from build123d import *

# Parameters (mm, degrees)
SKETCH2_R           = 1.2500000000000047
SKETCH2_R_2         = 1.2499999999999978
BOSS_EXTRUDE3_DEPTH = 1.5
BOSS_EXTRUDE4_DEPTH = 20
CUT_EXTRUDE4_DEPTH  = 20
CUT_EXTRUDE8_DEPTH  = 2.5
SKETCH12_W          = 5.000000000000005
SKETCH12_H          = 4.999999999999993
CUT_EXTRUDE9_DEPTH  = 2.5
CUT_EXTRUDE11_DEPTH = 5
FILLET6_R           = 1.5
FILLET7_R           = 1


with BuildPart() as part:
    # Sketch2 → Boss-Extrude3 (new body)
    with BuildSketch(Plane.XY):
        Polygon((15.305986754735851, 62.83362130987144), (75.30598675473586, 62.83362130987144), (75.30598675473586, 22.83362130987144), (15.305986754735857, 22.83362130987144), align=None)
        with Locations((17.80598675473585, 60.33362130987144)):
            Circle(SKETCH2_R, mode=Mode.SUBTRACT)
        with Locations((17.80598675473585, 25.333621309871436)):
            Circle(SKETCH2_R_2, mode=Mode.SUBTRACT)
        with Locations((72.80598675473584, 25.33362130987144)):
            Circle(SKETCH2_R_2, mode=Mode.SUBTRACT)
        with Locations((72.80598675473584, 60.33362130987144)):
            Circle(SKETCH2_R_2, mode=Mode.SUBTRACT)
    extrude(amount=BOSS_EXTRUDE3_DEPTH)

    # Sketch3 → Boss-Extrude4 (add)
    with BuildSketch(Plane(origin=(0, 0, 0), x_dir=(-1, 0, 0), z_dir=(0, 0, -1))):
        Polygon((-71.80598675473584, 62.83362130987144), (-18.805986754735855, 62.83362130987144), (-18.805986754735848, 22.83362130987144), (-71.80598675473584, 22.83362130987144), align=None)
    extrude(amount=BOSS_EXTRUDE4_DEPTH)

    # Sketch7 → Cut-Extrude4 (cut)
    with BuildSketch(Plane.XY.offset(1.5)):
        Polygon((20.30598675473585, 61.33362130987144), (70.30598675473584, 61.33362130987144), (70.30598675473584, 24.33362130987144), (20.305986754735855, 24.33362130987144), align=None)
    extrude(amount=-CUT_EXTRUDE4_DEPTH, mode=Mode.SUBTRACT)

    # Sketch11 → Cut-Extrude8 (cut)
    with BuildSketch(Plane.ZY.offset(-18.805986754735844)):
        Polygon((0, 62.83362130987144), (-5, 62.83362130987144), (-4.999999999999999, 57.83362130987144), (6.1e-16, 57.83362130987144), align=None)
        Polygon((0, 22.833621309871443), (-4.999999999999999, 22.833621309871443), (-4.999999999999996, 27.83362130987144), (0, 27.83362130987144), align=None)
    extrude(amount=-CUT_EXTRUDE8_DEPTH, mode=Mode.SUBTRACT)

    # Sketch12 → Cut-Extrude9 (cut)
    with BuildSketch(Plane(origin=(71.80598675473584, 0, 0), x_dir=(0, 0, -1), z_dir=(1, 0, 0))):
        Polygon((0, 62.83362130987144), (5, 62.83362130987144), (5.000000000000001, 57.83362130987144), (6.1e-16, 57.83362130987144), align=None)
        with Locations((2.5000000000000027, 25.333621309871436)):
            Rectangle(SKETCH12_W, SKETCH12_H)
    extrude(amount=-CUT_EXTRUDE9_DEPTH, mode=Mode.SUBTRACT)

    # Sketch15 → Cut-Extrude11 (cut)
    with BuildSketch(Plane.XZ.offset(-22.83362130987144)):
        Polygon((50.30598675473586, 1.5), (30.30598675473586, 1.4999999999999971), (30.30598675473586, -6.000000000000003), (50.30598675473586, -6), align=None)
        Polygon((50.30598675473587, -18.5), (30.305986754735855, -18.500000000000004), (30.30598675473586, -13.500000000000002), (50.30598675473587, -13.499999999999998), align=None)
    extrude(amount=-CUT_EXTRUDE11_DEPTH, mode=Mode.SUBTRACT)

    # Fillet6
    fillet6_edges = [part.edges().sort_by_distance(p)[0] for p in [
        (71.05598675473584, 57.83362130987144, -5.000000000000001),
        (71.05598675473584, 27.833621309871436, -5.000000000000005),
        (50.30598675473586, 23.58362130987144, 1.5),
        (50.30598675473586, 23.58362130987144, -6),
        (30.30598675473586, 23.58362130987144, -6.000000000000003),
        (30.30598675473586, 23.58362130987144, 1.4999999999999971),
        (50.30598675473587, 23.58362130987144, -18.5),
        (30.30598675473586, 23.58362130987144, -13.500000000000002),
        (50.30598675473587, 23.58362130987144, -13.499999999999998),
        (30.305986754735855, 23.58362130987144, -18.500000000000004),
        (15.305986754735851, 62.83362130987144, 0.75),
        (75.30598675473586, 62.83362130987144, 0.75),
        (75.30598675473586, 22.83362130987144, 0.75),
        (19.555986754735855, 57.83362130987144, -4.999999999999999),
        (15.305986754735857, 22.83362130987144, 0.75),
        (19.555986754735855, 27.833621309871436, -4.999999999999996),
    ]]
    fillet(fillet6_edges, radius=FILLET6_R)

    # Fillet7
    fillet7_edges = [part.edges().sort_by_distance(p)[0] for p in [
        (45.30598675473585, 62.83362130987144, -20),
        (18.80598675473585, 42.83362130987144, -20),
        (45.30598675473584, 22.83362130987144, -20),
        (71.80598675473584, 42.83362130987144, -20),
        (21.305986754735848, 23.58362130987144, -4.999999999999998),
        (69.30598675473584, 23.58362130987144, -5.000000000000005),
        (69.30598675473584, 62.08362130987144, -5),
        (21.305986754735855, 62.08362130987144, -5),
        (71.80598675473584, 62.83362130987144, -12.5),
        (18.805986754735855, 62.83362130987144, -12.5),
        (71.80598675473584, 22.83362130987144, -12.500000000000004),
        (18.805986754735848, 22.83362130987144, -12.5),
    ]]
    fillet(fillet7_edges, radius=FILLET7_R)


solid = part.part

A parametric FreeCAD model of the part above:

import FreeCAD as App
import Part
import Sketcher


def edges_at(feature, points):
    """Names of the edges that pass closest to the given points."""
    edges = feature.Shape.Edges
    near = lambda p: min(range(len(edges)), key=lambda i: edges[i].distToShape(Part.Vertex(*p))[0])
    return sorted({f"Edge{near(p) + 1}" for p in points})

doc = App.newDocument("Part")
params = doc.addObject("Spreadsheet::Sheet", "Params")
for row, (alias, value) in enumerate([
    ("sketch1_diameter", "2.5 mm"),
    ("sketch1_width", "60 mm"),
    ("sketch1_height", "40 mm"),
    ("pad1_length", "1.5 mm"),
    ("sketch2_width", "53 mm"),
    ("sketch2_height", "40 mm"),
    ("pad2_length", "20 mm"),
    ("sketch3_width", "50 mm"),
    ("sketch3_height", "37 mm"),
    ("pocket1_length", "20 mm"),
    ("sketch4_width", "5 mm"),
    ("pocket2_length", "2.5 mm"),
    ("sketch5_width", "5 mm"),
    ("pocket3_length", "2.5 mm"),
    ("sketch6_width", "20 mm"),
    ("sketch6_height", "5 mm"),
    ("sketch6_height2", "7.5 mm"),
    ("pocket4_length", "5 mm"),
    ("fillet_radius", "1.5 mm"),
    ("fillet2_radius", "1 mm"),
], start=1):
    params.set(f"A{row}", alias)
    params.set(f"B{row}", "=" + value)
    params.setAlias(f"B{row}", alias)

body = doc.addObject("PartDesign::Body", "Body")

# Sketch on XY plane
sketch1 = doc.addObject("Sketcher::SketchObject", "Sketch")
body.addObject(sketch1)
sketch1.AttachmentSupport = (doc.XY_Plane, [""])
sketch1.MapMode = "FlatFace"
sketch1.addGeometry([
    Part.LineSegment(App.Vector(75.3, 62.8, 0), App.Vector(15.3, 62.8, 0)),  # 0
    Part.LineSegment(App.Vector(15.3, 62.8, 0), App.Vector(15.3, 22.8, 0)),  # 1
    Part.LineSegment(App.Vector(15.3, 22.8, 0), App.Vector(75.3, 22.8, 0)),  # 2
    Part.LineSegment(App.Vector(75.3, 22.8, 0), App.Vector(75.3, 62.8, 0)),  # 3
    Part.Circle(App.Vector(72.8, 25.3, 0), App.Vector(0, 0, 1), 1.2),  # 4
    Part.Circle(App.Vector(17.8, 25.3, 0), App.Vector(0, 0, 1), 1.2),  # 5
    Part.Circle(App.Vector(72.8, 60.3, 0), App.Vector(0, 0, 1), 1.2),  # 6
    Part.Circle(App.Vector(17.8, 60.3, 0), App.Vector(0, 0, 1), 1.2),  # 7
], False)
sketch1.addConstraint([
    Sketcher.Constraint("Coincident", 0, 2, 1, 1),
    Sketcher.Constraint("Coincident", 1, 2, 2, 1),
    Sketcher.Constraint("Coincident", 2, 2, 3, 1),
    Sketcher.Constraint("Coincident", 3, 2, 0, 1),
    Sketcher.Constraint("Horizontal", 0),
    Sketcher.Constraint("Vertical", 1),
    Sketcher.Constraint("Horizontal", 2),
    Sketcher.Constraint("Vertical", 3),
    Sketcher.Constraint("Equal", 4, 5),
    Sketcher.Constraint("Equal", 5, 6),
    Sketcher.Constraint("Equal", 6, 7),
    Sketcher.Constraint("Horizontal", 4, 3, 5, 3),
    Sketcher.Constraint("Horizontal", 6, 3, 7, 3),
    Sketcher.Constraint("Vertical", 4, 3, 6, 3),
    Sketcher.Constraint("Vertical", 5, 3, 7, 3),
    Sketcher.Constraint("Diameter", 4, 2.5),
    Sketcher.Constraint("DistanceX", 0, 2, 0, 1, 60.0),
    Sketcher.Constraint("DistanceY", 1, 2, 1, 1, 40.0),
    Sketcher.Constraint("DistanceX", 5, 3, 4, 3, 55.0),
    Sketcher.Constraint("DistanceY", 4, 3, 6, 3, 35.0),
    Sketcher.Constraint("DistanceX", 0, 2, 7, 3, 2.5),
    Sketcher.Constraint("DistanceY", 7, 3, 0, 2, 2.5),
    Sketcher.Constraint("DistanceY", -1, 1, 4, 3, 25.333621),
    Sketcher.Constraint("DistanceX", -1, 1, 4, 3, 72.805987),
])
sketch1.setExpression("Constraints[15]", "Params.sketch1_diameter")
sketch1.setExpression("Constraints[16]", "Params.sketch1_width")
sketch1.setExpression("Constraints[17]", "Params.sketch1_height")
pad1 = doc.addObject("PartDesign::Pad", "Pad")
body.addObject(pad1)
pad1.Profile = sketch1
pad1.setExpression("Length", "Params.pad1_length")

# Sketch on XY plane
sketch2 = doc.addObject("Sketcher::SketchObject", "Sketch001")
body.addObject(sketch2)
sketch2.AttachmentSupport = (doc.XY_Plane, [""])
sketch2.MapMode = "FlatFace"
sketch2.addGeometry([
    Part.LineSegment(App.Vector(19, 63, 0), App.Vector(72, 63, 0)),
    Part.LineSegment(App.Vector(72, 63, 0), App.Vector(72, 23, 0)),
    Part.LineSegment(App.Vector(72, 23, 0), App.Vector(19, 23, 0)),
    Part.LineSegment(App.Vector(19, 23, 0), App.Vector(19, 63, 0)),
], False)
sketch2.addConstraint([
    Sketcher.Constraint("Coincident", 0, 2, 1, 1),
    Sketcher.Constraint("Coincident", 1, 2, 2, 1),
    Sketcher.Constraint("Coincident", 2, 2, 3, 1),
    Sketcher.Constraint("Coincident", 3, 2, 0, 1),
    Sketcher.Constraint("Horizontal", 0),
    Sketcher.Constraint("Vertical", 1),
    Sketcher.Constraint("Horizontal", 2),
    Sketcher.Constraint("Vertical", 3),
    Sketcher.Constraint("DistanceX", 0, 1, 0, 2, 53.0),
    Sketcher.Constraint("DistanceY", 1, 2, 1, 1, 40.0),
    Sketcher.Constraint("DistanceY", -1, 1, 0, 2, 62.833621),
    Sketcher.Constraint("DistanceX", -1, 1, 0, 2, 71.805987),
])
sketch2.setExpression("Constraints[8]", "Params.sketch2_width")
sketch2.setExpression("Constraints[9]", "Params.sketch2_height")
pad2 = doc.addObject("PartDesign::Pad", "Pad001")
body.addObject(pad2)
pad2.Profile = sketch2
pad2.setExpression("Length", "Params.pad2_length")
pad2.Reversed = True

# Sketch on XY plane
sketch3 = doc.addObject("Sketcher::SketchObject", "Sketch002")
body.addObject(sketch3)
sketch3.AttachmentSupport = (doc.XY_Plane, [""])
sketch3.MapMode = "FlatFace"
sketch3.AttachmentOffset = App.Placement(App.Vector(0, 0, 1.5), App.Rotation())
sketch3.addGeometry([
    Part.LineSegment(App.Vector(70, 61, 0), App.Vector(20, 61, 0)),
    Part.LineSegment(App.Vector(20, 61, 0), App.Vector(20, 24, 0)),
    Part.LineSegment(App.Vector(20, 24, 0), App.Vector(70, 24, 0)),
    Part.LineSegment(App.Vector(70, 24, 0), App.Vector(70, 61, 0)),
], False)
sketch3.addConstraint([
    Sketcher.Constraint("Coincident", 0, 2, 1, 1),
    Sketcher.Constraint("Coincident", 1, 2, 2, 1),
    Sketcher.Constraint("Coincident", 2, 2, 3, 1),
    Sketcher.Constraint("Coincident", 3, 2, 0, 1),
    Sketcher.Constraint("Horizontal", 0),
    Sketcher.Constraint("Vertical", 1),
    Sketcher.Constraint("Horizontal", 2),
    Sketcher.Constraint("Vertical", 3),
    Sketcher.Constraint("DistanceX", 0, 2, 0, 1, 50.0),
    Sketcher.Constraint("DistanceY", 1, 2, 1, 1, 37.0),
    Sketcher.Constraint("DistanceY", -1, 1, 0, 2, 61.333621),
    Sketcher.Constraint("DistanceX", -1, 1, 0, 2, 20.305987),
])
sketch3.setExpression("Constraints[8]", "Params.sketch3_width")
sketch3.setExpression("Constraints[9]", "Params.sketch3_height")
pocket1 = doc.addObject("PartDesign::Pocket", "Pocket")
body.addObject(pocket1)
pocket1.Profile = sketch3
pocket1.setExpression("Length", "Params.pocket1_length")

# Sketch on YZ plane
sketch4 = doc.addObject("Sketcher::SketchObject", "Sketch003")
body.addObject(sketch4)
sketch4.AttachmentSupport = (doc.YZ_Plane, [""])
sketch4.MapMode = "FlatFace"
sketch4.AttachmentOffset = App.Placement(App.Vector(0, 0, 18.805987), App.Rotation())
sketch4.addGeometry([
    Part.LineSegment(App.Vector(63, 0, 0), App.Vector(63, -5, 0)),  # 0
    Part.LineSegment(App.Vector(63, -5, 0), App.Vector(58, -5, 0)),  # 1
    Part.LineSegment(App.Vector(58, -5, 0), App.Vector(58, 0, 0)),  # 2
    Part.LineSegment(App.Vector(58, 0, 0), App.Vector(63, 0, 0)),  # 3
    Part.LineSegment(App.Vector(23, -5, 0), App.Vector(23, 0, 0)),  # 4
    Part.LineSegment(App.Vector(23, 0, 0), App.Vector(28, 0, 0)),  # 5
    Part.LineSegment(App.Vector(28, 0, 0), App.Vector(28, -5, 0)),  # 6
    Part.LineSegment(App.Vector(28, -5, 0), App.Vector(23, -5, 0)),  # 7
], False)
sketch4.addConstraint([
    Sketcher.Constraint("Coincident", 0, 2, 1, 1),
    Sketcher.Constraint("Coincident", 1, 2, 2, 1),
    Sketcher.Constraint("Coincident", 2, 2, 3, 1),
    Sketcher.Constraint("Coincident", 3, 2, 0, 1),
    Sketcher.Constraint("Coincident", 4, 2, 5, 1),
    Sketcher.Constraint("Coincident", 5, 2, 6, 1),
    Sketcher.Constraint("Coincident", 6, 2, 7, 1),
    Sketcher.Constraint("Coincident", 7, 2, 4, 1),
    Sketcher.Constraint("Vertical", 0),
    Sketcher.Constraint("Horizontal", 1),
    Sketcher.Constraint("Vertical", 2),
    Sketcher.Constraint("Horizontal", 3),
    Sketcher.Constraint("Vertical", 4),
    Sketcher.Constraint("Horizontal", 5),
    Sketcher.Constraint("Vertical", 6),
    Sketcher.Constraint("Horizontal", 7),
    Sketcher.Constraint("PointOnObject", 2, 2, -1),
    Sketcher.Constraint("PointOnObject", 4, 2, -1),
    Sketcher.Constraint("Horizontal", 1, 2, 6, 2),
    Sketcher.Constraint("Equal", 3, 5),
    Sketcher.Constraint("Equal", 7, 0),
    Sketcher.Constraint("DistanceX", 1, 2, 1, 1, 5.0),
    Sketcher.Constraint("DistanceX", 4, 2, 2, 2, 35.0),
    Sketcher.Constraint("DistanceX", -1, 1, 0, 2, 62.833621),
])
sketch4.setExpression("Constraints[21]", "Params.sketch4_width")
pocket2 = doc.addObject("PartDesign::Pocket", "Pocket001")
body.addObject(pocket2)
pocket2.Profile = sketch4
pocket2.setExpression("Length", "Params.pocket2_length")
pocket2.Reversed = True

# Sketch on YZ plane
sketch5 = doc.addObject("Sketcher::SketchObject", "Sketch004")
body.addObject(sketch5)
sketch5.AttachmentSupport = (doc.YZ_Plane, [""])
sketch5.MapMode = "FlatFace"
sketch5.AttachmentOffset = App.Placement(App.Vector(0, 0, 71.805987), App.Rotation())
sketch5.addGeometry([
    Part.LineSegment(App.Vector(63, -5, 0), App.Vector(63, 0, 0)),  # 0
    Part.LineSegment(App.Vector(63, 0, 0), App.Vector(58, 0, 0)),  # 1
    Part.LineSegment(App.Vector(58, 0, 0), App.Vector(58, -5, 0)),  # 2
    Part.LineSegment(App.Vector(58, -5, 0), App.Vector(63, -5, 0)),  # 3
    Part.LineSegment(App.Vector(28, 0, 0), App.Vector(23, 0, 0)),  # 4
    Part.LineSegment(App.Vector(23, 0, 0), App.Vector(23, -5, 0)),  # 5
    Part.LineSegment(App.Vector(23, -5, 0), App.Vector(28, -5, 0)),  # 6
    Part.LineSegment(App.Vector(28, -5, 0), App.Vector(28, 0, 0)),  # 7
], False)
sketch5.addConstraint([
    Sketcher.Constraint("Coincident", 0, 2, 1, 1),
    Sketcher.Constraint("Coincident", 1, 2, 2, 1),
    Sketcher.Constraint("Coincident", 2, 2, 3, 1),
    Sketcher.Constraint("Coincident", 3, 2, 0, 1),
    Sketcher.Constraint("Coincident", 4, 2, 5, 1),
    Sketcher.Constraint("Coincident", 5, 2, 6, 1),
    Sketcher.Constraint("Coincident", 6, 2, 7, 1),
    Sketcher.Constraint("Coincident", 7, 2, 4, 1),
    Sketcher.Constraint("Vertical", 0),
    Sketcher.Constraint("Horizontal", 1),
    Sketcher.Constraint("Vertical", 2),
    Sketcher.Constraint("Horizontal", 3),
    Sketcher.Constraint("Horizontal", 4),
    Sketcher.Constraint("Vertical", 5),
    Sketcher.Constraint("Horizontal", 6),
    Sketcher.Constraint("Vertical", 7),
    Sketcher.Constraint("PointOnObject", 0, 2, -1),
    Sketcher.Constraint("PointOnObject", 4, 2, -1),
    Sketcher.Constraint("Horizontal", 3, 2, 5, 2),
    Sketcher.Constraint("Equal", 3, 4),
    Sketcher.Constraint("Equal", 6, 0),
    Sketcher.Constraint("DistanceX", 1, 2, 1, 1, 5.0),
    Sketcher.Constraint("DistanceX", 4, 2, 1, 2, 35.0),
    Sketcher.Constraint("DistanceX", -1, 1, 0, 2, 62.833621),
])
sketch5.setExpression("Constraints[21]", "Params.sketch5_width")
pocket3 = doc.addObject("PartDesign::Pocket", "Pocket002")
body.addObject(pocket3)
pocket3.Profile = sketch5
pocket3.setExpression("Length", "Params.pocket3_length")

# Sketch on XZ plane
sketch6 = doc.addObject("Sketcher::SketchObject", "Sketch005")
body.addObject(sketch6)
sketch6.AttachmentSupport = (doc.XZ_Plane, [""])
sketch6.MapMode = "FlatFace"
sketch6.AttachmentOffset = App.Placement(App.Vector(0, 0, -22.833621), App.Rotation())
sketch6.addGeometry([
    Part.LineSegment(App.Vector(50, 2, 0), App.Vector(30, 2, 0)),  # 0
    Part.LineSegment(App.Vector(30, 2, 0), App.Vector(30, -6, 0)),  # 1
    Part.LineSegment(App.Vector(30, -6, 0), App.Vector(50, -6, 0)),  # 2
    Part.LineSegment(App.Vector(50, -6, 0), App.Vector(50, 2, 0)),  # 3
    Part.LineSegment(App.Vector(30, -18, 0), App.Vector(50, -18, 0)),  # 4
    Part.LineSegment(App.Vector(50, -18, 0), App.Vector(50, -14, 0)),  # 5
    Part.LineSegment(App.Vector(50, -14, 0), App.Vector(30, -14, 0)),  # 6
    Part.LineSegment(App.Vector(30, -14, 0), App.Vector(30, -18, 0)),  # 7
], False)
sketch6.addConstraint([
    Sketcher.Constraint("Coincident", 0, 2, 1, 1),
    Sketcher.Constraint("Coincident", 1, 2, 2, 1),
    Sketcher.Constraint("Coincident", 2, 2, 3, 1),
    Sketcher.Constraint("Coincident", 3, 2, 0, 1),
    Sketcher.Constraint("Coincident", 4, 2, 5, 1),
    Sketcher.Constraint("Coincident", 5, 2, 6, 1),
    Sketcher.Constraint("Coincident", 6, 2, 7, 1),
    Sketcher.Constraint("Coincident", 7, 2, 4, 1),
    Sketcher.Constraint("Horizontal", 0),
    Sketcher.Constraint("Vertical", 1),
    Sketcher.Constraint("Horizontal", 2),
    Sketcher.Constraint("Vertical", 3),
    Sketcher.Constraint("Horizontal", 4),
    Sketcher.Constraint("Vertical", 5),
    Sketcher.Constraint("Horizontal", 6),
    Sketcher.Constraint("Vertical", 7),
    Sketcher.Constraint("Vertical", 3, 2, 4, 2),
    Sketcher.Constraint("Vertical", 1, 2, 6, 2),
    Sketcher.Constraint("DistanceX", 0, 2, 0, 1, 20.0),
    Sketcher.Constraint("DistanceY", 5, 1, 5, 2, 5.0),
    Sketcher.Constraint("DistanceY", 1, 2, 1, 1, 7.5),
    Sketcher.Constraint("DistanceY", 1, 2, -1, 1, 6.0),
    Sketcher.Constraint("DistanceY", 4, 2, 3, 2, 20.0),
    Sketcher.Constraint("DistanceX", -1, 1, 0, 2, 30.305987),
])
sketch6.setExpression("Constraints[18]", "Params.sketch6_width")
sketch6.setExpression("Constraints[19]", "Params.sketch6_height")
sketch6.setExpression("Constraints[20]", "Params.sketch6_height2")
pocket4 = doc.addObject("PartDesign::Pocket", "Pocket003")
body.addObject(pocket4)
pocket4.Profile = sketch6
pocket4.setExpression("Length", "Params.pocket4_length")
doc.recompute()

fillet = doc.addObject("PartDesign::Fillet", "Fillet")
body.addObject(fillet)
fillet.Base = (pocket4, edges_at(pocket4, [
    (71.056, 57.834, -5),
    (71.056, 27.834, -5),
    (50.306, 23.584, 1.5),
    (50.306, 23.584, -6),
    (30.306, 23.584, -6),
    (30.306, 23.584, 1.5),
    (50.306, 23.584, -18.5),
    (30.306, 23.584, -13.5),
    (50.306, 23.584, -13.5),
    (30.306, 23.584, -18.5),
    (15.306, 62.834, 0.75),
    (75.306, 62.834, 0.75),
    (75.306, 22.834, 0.75),
    (19.556, 57.834, -5),
    (15.306, 22.834, 0.75),
    (19.556, 27.834, -5),
]))
fillet.setExpression("Radius", "Params.fillet_radius")
doc.recompute()

fillet2 = doc.addObject("PartDesign::Fillet", "Fillet001")
body.addObject(fillet2)
fillet2.Base = (fillet, edges_at(fillet, [
    (45.306, 62.834, -20),
    (18.806, 42.834, -20),
    (45.306, 22.834, -20),
    (71.806, 42.834, -20),
    (21.306, 23.584, -5),
    (69.306, 23.584, -5),
    (69.306, 62.084, -5),
    (21.306, 62.084, -5),
    (71.806, 62.834, -12.5),
    (18.806, 62.834, -12.5),
    (71.806, 22.834, -12.5),
    (18.806, 22.834, -12.5),
]))
fillet2.setExpression("Radius", "Params.fillet2_radius")

doc.recompute()
